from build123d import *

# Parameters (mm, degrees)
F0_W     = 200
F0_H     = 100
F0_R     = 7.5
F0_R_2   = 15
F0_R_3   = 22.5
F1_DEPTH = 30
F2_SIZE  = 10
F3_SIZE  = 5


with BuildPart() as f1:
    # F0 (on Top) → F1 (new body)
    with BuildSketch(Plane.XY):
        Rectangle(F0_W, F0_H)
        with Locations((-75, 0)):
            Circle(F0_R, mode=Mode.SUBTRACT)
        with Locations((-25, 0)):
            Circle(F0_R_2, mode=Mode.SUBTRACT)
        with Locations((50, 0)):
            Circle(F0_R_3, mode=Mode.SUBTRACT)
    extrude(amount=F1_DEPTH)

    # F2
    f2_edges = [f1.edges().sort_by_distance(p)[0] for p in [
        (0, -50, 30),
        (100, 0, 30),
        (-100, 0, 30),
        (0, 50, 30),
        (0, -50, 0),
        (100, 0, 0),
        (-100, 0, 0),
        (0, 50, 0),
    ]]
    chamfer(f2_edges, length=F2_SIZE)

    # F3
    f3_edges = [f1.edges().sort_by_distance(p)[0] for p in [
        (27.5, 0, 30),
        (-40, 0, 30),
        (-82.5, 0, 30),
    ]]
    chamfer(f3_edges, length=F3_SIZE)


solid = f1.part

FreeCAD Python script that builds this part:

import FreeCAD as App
import Part
import Sketcher

V = App.Vector


def edges_at(feature, points):
    """Names of the edges that pass closest to the given points."""
    edges = feature.Shape.Edges
    near = lambda p: min(range(len(edges)), key=lambda i: edges[i].distToShape(Part.Vertex(*p))[0])
    return sorted({f"Edge{near(p) + 1}" for p in points})


def add_polygon(sketch, points):
    """Adds a closed chain of lines whose ends are joined by coincident constraints."""
    first, n = sketch.GeometryCount, len(points)
    for a, b in zip(points, points[1:] + points[:1]):
        sketch.addGeometry(Part.LineSegment(App.Vector(*a, 0), App.Vector(*b, 0)), False)
    for i in range(n):
        sketch.addConstraint(Sketcher.Constraint("Coincident", first + i, 2, first + (i + 1) % n, 1))

doc = App.newDocument("Part")
body = doc.addObject("PartDesign::Body", "Body")

# Sketch on XY plane
sketch1 = body.newObject("Sketcher::SketchObject", "Sketch")
sketch1.AttachmentSupport = (doc.getObject("XY_Plane"), [""])
sketch1.MapMode = "FlatFace"
add_polygon(sketch1, [(-100, 50), (-100, -50), (100, -50), (100, 50)])  # lines 0-3
sketch1.addGeometry(Part.Circle(V(-75, 0, 0), V(0, 0, 1), 8), False)  # 4
sketch1.addGeometry(Part.Circle(V(-25, 0, 0), V(0, 0, 1), 15), False)  # 5
sketch1.addGeometry(Part.Circle(V(50, 0, 0), V(0, 0, 1), 22), False)  # 6
sketch1.addConstraint([
    Sketcher.Constraint("Vertical", 0),
    Sketcher.Constraint("Horizontal", 1),
    Sketcher.Constraint("Vertical", 2),
    Sketcher.Constraint("Horizontal", 3),
    Sketcher.Constraint("Symmetric", 0, 2, 2, 2, -1, 1),
    Sketcher.Constraint("PointOnObject", 4, 3, -1),
    Sketcher.Constraint("PointOnObject", 5, 3, -1),
    Sketcher.Constraint("PointOnObject", 6, 3, -1),
    Sketcher.Constraint("Diameter", 4, 15.0),
    Sketcher.Constraint("Diameter", 5, 30.0),
    Sketcher.Constraint("Diameter", 6, 45.0),
    Sketcher.Constraint("DistanceX", 1, 1, 1, 2, 200.0),
    Sketcher.Constraint("DistanceY", 0, 2, 0, 1, 100.0),
    Sketcher.Constraint("DistanceX", 4, 3, -1, 1, 75.0),
    Sketcher.Constraint("DistanceX", 5, 3, -1, 1, 25.0),
    Sketcher.Constraint("DistanceX", -1, 1, 6, 3, 50.0),
])
pad1 = body.newObject("PartDesign::Pad", "Pad")
pad1.Profile = sketch1
pad1.Length = 30
doc.recompute()

chamfer = body.newObject("PartDesign::Chamfer", "Chamfer")
chamfer.Base = (pad1, edges_at(pad1, [
    (0, -50, 30),
    (100, 0, 30),
    (-100, 0, 30),
    (0, 50, 30),
    (0, -50, 0),
    (100, 0, 0),
    (-100, 0, 0),
    (0, 50, 0),
]))
chamfer.Size = 10
doc.recompute()

chamfer2 = body.newObject("PartDesign::Chamfer", "Chamfer001")
chamfer2.Base = (chamfer, edges_at(chamfer, [(27.5, 0, 30), (-40, 0, 30), (-82.5, 0, 30)]))
chamfer2.Size = 5

doc.recompute()
